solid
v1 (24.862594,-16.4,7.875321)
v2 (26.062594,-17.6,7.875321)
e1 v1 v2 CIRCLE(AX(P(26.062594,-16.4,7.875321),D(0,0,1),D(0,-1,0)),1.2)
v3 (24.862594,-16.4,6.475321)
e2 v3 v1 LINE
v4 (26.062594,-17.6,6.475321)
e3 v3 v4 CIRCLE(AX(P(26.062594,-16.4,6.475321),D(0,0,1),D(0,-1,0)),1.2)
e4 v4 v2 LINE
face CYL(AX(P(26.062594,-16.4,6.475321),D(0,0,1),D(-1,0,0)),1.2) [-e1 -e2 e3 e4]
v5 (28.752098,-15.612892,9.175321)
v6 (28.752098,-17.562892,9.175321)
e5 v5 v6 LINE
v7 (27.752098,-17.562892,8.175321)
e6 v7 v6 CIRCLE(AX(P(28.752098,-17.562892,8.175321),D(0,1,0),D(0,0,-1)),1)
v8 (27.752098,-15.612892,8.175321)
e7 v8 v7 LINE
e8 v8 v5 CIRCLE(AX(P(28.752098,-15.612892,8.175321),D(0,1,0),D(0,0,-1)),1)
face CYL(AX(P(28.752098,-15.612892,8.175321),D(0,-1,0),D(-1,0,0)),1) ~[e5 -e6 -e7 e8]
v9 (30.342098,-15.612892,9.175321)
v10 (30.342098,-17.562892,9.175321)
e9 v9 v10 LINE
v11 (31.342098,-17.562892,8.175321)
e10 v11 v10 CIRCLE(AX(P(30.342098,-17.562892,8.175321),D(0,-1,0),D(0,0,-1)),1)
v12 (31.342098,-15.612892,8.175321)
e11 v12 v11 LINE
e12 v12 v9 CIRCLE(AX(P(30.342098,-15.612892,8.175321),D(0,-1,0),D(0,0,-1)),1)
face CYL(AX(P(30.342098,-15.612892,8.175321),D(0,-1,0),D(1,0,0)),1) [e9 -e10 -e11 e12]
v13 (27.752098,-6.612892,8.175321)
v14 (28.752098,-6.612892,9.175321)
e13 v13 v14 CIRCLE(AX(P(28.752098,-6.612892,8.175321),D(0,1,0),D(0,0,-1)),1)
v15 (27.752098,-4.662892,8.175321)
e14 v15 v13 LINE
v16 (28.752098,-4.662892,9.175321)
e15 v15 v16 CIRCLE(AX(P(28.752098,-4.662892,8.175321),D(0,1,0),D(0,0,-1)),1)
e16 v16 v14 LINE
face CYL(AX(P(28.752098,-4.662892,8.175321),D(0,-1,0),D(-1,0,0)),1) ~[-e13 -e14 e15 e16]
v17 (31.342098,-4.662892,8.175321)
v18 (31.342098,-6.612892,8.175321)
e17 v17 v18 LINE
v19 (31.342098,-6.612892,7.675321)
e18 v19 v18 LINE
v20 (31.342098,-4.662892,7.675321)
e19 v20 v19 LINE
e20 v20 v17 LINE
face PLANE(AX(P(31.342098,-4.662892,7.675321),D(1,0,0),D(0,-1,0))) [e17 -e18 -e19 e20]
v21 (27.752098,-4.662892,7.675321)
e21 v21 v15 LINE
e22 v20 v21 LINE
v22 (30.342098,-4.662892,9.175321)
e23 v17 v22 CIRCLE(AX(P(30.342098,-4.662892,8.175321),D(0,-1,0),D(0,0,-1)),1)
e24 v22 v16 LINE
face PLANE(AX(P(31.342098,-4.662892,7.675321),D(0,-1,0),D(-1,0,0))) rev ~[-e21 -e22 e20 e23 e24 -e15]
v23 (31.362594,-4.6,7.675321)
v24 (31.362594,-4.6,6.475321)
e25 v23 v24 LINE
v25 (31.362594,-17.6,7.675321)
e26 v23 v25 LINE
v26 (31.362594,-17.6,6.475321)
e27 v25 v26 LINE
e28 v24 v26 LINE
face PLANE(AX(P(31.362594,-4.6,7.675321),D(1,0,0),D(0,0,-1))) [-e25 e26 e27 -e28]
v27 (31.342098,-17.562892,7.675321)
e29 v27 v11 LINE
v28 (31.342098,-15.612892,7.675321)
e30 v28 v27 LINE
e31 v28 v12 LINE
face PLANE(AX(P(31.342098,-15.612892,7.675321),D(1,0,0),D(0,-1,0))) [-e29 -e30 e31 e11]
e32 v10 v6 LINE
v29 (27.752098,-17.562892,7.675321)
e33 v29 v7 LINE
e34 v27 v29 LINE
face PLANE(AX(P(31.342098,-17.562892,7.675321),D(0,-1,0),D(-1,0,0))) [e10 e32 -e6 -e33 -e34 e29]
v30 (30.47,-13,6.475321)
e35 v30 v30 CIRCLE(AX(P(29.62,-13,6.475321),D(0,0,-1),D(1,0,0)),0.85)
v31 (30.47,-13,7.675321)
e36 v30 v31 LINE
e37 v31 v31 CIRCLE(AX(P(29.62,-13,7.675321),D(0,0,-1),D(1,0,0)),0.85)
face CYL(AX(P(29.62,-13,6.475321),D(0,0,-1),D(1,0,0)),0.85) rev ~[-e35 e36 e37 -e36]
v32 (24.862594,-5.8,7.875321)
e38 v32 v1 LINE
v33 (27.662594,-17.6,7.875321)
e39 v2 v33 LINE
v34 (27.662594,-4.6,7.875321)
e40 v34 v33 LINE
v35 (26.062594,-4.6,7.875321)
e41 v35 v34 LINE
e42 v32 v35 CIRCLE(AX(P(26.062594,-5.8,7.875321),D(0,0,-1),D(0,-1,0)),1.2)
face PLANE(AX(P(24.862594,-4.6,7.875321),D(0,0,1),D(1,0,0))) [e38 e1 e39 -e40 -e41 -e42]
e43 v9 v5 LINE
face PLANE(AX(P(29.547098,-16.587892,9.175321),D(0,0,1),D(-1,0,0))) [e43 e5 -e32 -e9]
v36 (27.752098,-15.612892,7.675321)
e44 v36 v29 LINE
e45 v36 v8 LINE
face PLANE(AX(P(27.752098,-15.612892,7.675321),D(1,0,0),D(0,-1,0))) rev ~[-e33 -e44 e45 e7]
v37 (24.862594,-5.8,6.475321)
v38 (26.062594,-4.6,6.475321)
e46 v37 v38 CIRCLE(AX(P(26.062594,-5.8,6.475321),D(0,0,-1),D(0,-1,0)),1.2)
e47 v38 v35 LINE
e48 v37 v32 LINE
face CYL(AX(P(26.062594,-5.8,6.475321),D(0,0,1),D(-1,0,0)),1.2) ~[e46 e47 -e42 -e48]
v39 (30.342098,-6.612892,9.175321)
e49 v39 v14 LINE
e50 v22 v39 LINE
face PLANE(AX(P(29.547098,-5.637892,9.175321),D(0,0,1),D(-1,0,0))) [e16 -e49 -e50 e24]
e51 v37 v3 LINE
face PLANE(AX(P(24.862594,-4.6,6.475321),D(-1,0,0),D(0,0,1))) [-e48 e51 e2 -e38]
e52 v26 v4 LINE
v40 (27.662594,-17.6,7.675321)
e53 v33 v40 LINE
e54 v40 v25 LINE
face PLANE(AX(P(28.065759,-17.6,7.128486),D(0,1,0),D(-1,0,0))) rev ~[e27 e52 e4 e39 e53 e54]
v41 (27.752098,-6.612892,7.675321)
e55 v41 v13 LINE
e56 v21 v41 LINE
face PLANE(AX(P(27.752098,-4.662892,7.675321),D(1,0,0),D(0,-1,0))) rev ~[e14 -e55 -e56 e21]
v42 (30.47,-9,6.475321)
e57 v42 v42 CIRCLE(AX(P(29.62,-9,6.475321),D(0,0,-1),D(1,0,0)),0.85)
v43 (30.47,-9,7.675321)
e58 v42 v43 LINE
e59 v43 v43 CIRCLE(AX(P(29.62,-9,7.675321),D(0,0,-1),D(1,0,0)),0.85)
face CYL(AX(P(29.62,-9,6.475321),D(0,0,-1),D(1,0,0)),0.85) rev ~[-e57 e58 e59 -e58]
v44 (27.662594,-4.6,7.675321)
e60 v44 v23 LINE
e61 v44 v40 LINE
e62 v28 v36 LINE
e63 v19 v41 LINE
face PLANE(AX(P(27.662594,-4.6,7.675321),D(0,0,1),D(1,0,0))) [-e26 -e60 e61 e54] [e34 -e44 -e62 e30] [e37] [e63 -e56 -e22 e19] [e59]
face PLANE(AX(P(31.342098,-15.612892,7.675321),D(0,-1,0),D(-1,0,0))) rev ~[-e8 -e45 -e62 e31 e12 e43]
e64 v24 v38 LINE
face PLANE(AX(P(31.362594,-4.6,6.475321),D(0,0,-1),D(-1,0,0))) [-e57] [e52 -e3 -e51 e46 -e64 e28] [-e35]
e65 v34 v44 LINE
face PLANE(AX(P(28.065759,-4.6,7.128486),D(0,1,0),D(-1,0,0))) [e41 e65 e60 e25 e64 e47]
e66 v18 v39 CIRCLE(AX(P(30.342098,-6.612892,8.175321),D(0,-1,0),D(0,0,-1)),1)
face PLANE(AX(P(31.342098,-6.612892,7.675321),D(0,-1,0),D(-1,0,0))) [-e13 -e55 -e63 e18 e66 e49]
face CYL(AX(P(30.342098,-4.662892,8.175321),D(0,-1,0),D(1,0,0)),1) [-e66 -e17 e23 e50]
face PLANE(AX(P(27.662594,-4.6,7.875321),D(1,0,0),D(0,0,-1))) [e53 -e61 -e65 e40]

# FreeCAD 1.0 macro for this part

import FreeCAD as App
import Part
import Sketcher

V = App.Vector


def edges_at(feature, points):
    """Names of the edges that pass closest to the given points."""
    edges = feature.Shape.Edges
    near = lambda p: min(range(len(edges)), key=lambda i: edges[i].distToShape(Part.Vertex(*p))[0])
    return sorted({f"Edge{near(p) + 1}" for p in points})

doc = App.newDocument("Part")
body = doc.addObject("PartDesign::Body", "Body")

sketch1 = body.newObject("Sketcher::SketchObject", "Sketch")
sketch1.AttachmentSupport = (doc.getObject("XZ_Plane"), [""])
sketch1.MapMode = "FlatFace"
sketch1.AttachmentOffset = App.Placement(V(0, 0, -4), App.Rotation())
sketch1.addGeometry([
    Part.LineSegment(V(27.66, 8.18, 0), V(24.86, 8.18, 0)),
    Part.LineSegment(V(24.86, 8.18, 0), V(24.86, 6.78, 0)),
    Part.LineSegment(V(24.86, 6.78, 0), V(31.36, 6.78, 0)),
    Part.LineSegment(V(31.36, 6.78, 0), V(31.36, 7.98, 0)),
    Part.LineSegment(V(31.36, 7.98, 0), V(27.66, 7.98, 0)),
    Part.LineSegment(V(27.66, 7.98, 0), V(27.66, 8.18, 0)),
], False)
sketch1.addConstraint([
    Sketcher.Constraint("Coincident", 0, 2, 1, 1),
    Sketcher.Constraint("Coincident", 1, 2, 2, 1),
    Sketcher.Constraint("Coincident", 2, 2, 3, 1),
    Sketcher.Constraint("Coincident", 3, 2, 4, 1),
    Sketcher.Constraint("Coincident", 4, 2, 5, 1),
    Sketcher.Constraint("Coincident", 5, 2, 0, 1),
    Sketcher.Constraint("Horizontal", 0),
    Sketcher.Constraint("Vertical", 1),
    Sketcher.Constraint("Horizontal", 2),
    Sketcher.Constraint("Vertical", 3),
    Sketcher.Constraint("Horizontal", 4),
    Sketcher.Constraint("Vertical", 5),
    Sketcher.Constraint("DistanceX", 0, 2, 0, 1, 2.8),
    Sketcher.Constraint("DistanceX", 2, 1, 2, 2, 6.5),
    Sketcher.Constraint("DistanceY", 1, 2, 1, 1, 1.4),
    Sketcher.Constraint("DistanceY", 3, 1, 3, 2, 1.2),
    Sketcher.Constraint("DistanceY", -1, 1, 0, 2, 8.175321),
    Sketcher.Constraint("DistanceX", -1, 1, 0, 2, 24.862594),
])
pad1 = body.newObject("PartDesign::Pad", "Pad")
pad1.Profile = sketch1
pad1.Length = 13

sketch2 = body.newObject("Sketcher::SketchObject", "Sketch001")
sketch2.AttachmentSupport = (doc.getObject("XY_Plane"), [""])
sketch2.MapMode = "FlatFace"
sketch2.AttachmentOffset = App.Placement(V(0, 0, 6.775321), App.Rotation())
sketch2.addGeometry([
    Part.Circle(V(29.6, -4.4, 0), V(0, 0, 1), 0.8),
    Part.Circle(V(29.6, -0.4, 0), V(0, 0, 1), 0.8),
], False)
sketch2.addConstraint([
    Sketcher.Constraint("Equal", 0, 1),
    Sketcher.Constraint("Vertical", 0, 3, 1, 3),
    Sketcher.Constraint("Diameter", 0, 1.7),
    Sketcher.Constraint("DistanceY", 0, 3, 1, 3, 4.0),
    Sketcher.Constraint("DistanceY", 0, 3, -1, 1, 4.4),
    Sketcher.Constraint("DistanceX", -1, 1, 0, 3, 29.62),
])
pocket1 = body.newObject("PartDesign::Pocket", "Pocket")
pocket1.Profile = sketch2
pocket1.Length = 5
pocket1.Reversed = True
doc.recompute()

fillet = body.newObject("PartDesign::Fillet", "Fillet")
fillet.Base = (pocket1, edges_at(pocket1, [(24.863, -9, 7.475), (24.863, 4, 7.475)]))
fillet.Radius = 1.2

sketch3 = body.newObject("Sketcher::SketchObject", "Sketch002")
sketch3.AttachmentSupport = (doc.getObject("XY_Plane"), [""])
sketch3.MapMode = "FlatFace"
sketch3.AttachmentOffset = App.Placement(V(0, 0, 7.975321), App.Rotation())
sketch3.addGeometry([
    Part.LineSegment(V(31.3, -9, 0), V(31.3, -7, 0)),
    Part.LineSegment(V(31.3, -7, 0), V(27.8, -7, 0)),
    Part.LineSegment(V(27.8, -7, 0), V(27.8, -9, 0)),
    Part.LineSegment(V(27.8, -9, 0), V(31.3, -9, 0)),
    Part.LineSegment(V(31.3, 2, 0), V(31.3, 3.9, 0)),
    Part.LineSegment(V(31.3, 3.9, 0), V(27.8, 3.9, 0)),
    Part.LineSegment(V(27.8, 3.9, 0), V(27.8, 2, 0)),
    Part.LineSegment(V(27.8, 2, 0), V(31.3, 2, 0)),
], False)
sketch3.addConstraint([
    Sketcher.Constraint("Coincident", 0, 2, 1, 1),
    Sketcher.Constraint("Coincident", 1, 2, 2, 1),
    Sketcher.Constraint("Coincident", 2, 2, 3, 1),
    Sketcher.Constraint("Coincident", 3, 2, 0, 1),
    Sketcher.Constraint("Coincident", 4, 2, 5, 1),
    Sketcher.Constraint("Coincident", 5, 2, 6, 1),
    Sketcher.Constraint("Coincident", 6, 2, 7, 1),
    Sketcher.Constraint("Coincident", 7, 2, 4, 1),
    Sketcher.Constraint("Vertical", 0),
    Sketcher.Constraint("Horizontal", 1),
    Sketcher.Constraint("Vertical", 2),
    Sketcher.Constraint("Horizontal", 3),
    Sketcher.Constraint("Vertical", 4),
    Sketcher.Constraint("Horizontal", 5),
    Sketcher.Constraint("Vertical", 6),
    Sketcher.Constraint("Horizontal", 7),
    Sketcher.Constraint("Vertical", 3, 2, 4, 2),
    Sketcher.Constraint("Vertical", 2, 2, 5, 2),
    Sketcher.Constraint("Equal", 2, 4),
    Sketcher.Constraint("DistanceY", 1, 2, 6, 2, 9.0),
    Sketcher.Constraint("DistanceX", 1, 2, 1, 1, 3.59),
    Sketcher.Constraint("DistanceY", 0, 1, 0, 2, 1.95),
    Sketcher.Constraint("DistanceX", -1, 1, 0, 2, 31.342098),
    Sketcher.Constraint("DistanceY", -1, 1, 6, 2, 1.987108),
])
pad2 = body.newObject("PartDesign::Pad", "Pad001")
pad2.Profile = sketch3
pad2.Length = 1.5
doc.recompute()

fillet2 = body.newObject("PartDesign::Fillet", "Fillet001")
fillet2.Base = (pad2, edges_at(pad2, [
    (27.752, 2.962, 9.475),
    (31.342, 2.962, 9.475),
    (27.752, -7.988, 9.475),
    (31.342, -7.988, 9.475),
]))
fillet2.Radius = 1
body2 = doc.addObject("PartDesign::Body", "Body001")
doc.recompute()

body.Placement = App.Placement(V(0, -8.6, -0.3), App.Rotation(V(0, 0, 1), 0))
boolean = body2.newObject("PartDesign::Boolean", "Boolean")
boolean.Type = "Fuse"
boolean.addObjects([body])

doc.recompute()
